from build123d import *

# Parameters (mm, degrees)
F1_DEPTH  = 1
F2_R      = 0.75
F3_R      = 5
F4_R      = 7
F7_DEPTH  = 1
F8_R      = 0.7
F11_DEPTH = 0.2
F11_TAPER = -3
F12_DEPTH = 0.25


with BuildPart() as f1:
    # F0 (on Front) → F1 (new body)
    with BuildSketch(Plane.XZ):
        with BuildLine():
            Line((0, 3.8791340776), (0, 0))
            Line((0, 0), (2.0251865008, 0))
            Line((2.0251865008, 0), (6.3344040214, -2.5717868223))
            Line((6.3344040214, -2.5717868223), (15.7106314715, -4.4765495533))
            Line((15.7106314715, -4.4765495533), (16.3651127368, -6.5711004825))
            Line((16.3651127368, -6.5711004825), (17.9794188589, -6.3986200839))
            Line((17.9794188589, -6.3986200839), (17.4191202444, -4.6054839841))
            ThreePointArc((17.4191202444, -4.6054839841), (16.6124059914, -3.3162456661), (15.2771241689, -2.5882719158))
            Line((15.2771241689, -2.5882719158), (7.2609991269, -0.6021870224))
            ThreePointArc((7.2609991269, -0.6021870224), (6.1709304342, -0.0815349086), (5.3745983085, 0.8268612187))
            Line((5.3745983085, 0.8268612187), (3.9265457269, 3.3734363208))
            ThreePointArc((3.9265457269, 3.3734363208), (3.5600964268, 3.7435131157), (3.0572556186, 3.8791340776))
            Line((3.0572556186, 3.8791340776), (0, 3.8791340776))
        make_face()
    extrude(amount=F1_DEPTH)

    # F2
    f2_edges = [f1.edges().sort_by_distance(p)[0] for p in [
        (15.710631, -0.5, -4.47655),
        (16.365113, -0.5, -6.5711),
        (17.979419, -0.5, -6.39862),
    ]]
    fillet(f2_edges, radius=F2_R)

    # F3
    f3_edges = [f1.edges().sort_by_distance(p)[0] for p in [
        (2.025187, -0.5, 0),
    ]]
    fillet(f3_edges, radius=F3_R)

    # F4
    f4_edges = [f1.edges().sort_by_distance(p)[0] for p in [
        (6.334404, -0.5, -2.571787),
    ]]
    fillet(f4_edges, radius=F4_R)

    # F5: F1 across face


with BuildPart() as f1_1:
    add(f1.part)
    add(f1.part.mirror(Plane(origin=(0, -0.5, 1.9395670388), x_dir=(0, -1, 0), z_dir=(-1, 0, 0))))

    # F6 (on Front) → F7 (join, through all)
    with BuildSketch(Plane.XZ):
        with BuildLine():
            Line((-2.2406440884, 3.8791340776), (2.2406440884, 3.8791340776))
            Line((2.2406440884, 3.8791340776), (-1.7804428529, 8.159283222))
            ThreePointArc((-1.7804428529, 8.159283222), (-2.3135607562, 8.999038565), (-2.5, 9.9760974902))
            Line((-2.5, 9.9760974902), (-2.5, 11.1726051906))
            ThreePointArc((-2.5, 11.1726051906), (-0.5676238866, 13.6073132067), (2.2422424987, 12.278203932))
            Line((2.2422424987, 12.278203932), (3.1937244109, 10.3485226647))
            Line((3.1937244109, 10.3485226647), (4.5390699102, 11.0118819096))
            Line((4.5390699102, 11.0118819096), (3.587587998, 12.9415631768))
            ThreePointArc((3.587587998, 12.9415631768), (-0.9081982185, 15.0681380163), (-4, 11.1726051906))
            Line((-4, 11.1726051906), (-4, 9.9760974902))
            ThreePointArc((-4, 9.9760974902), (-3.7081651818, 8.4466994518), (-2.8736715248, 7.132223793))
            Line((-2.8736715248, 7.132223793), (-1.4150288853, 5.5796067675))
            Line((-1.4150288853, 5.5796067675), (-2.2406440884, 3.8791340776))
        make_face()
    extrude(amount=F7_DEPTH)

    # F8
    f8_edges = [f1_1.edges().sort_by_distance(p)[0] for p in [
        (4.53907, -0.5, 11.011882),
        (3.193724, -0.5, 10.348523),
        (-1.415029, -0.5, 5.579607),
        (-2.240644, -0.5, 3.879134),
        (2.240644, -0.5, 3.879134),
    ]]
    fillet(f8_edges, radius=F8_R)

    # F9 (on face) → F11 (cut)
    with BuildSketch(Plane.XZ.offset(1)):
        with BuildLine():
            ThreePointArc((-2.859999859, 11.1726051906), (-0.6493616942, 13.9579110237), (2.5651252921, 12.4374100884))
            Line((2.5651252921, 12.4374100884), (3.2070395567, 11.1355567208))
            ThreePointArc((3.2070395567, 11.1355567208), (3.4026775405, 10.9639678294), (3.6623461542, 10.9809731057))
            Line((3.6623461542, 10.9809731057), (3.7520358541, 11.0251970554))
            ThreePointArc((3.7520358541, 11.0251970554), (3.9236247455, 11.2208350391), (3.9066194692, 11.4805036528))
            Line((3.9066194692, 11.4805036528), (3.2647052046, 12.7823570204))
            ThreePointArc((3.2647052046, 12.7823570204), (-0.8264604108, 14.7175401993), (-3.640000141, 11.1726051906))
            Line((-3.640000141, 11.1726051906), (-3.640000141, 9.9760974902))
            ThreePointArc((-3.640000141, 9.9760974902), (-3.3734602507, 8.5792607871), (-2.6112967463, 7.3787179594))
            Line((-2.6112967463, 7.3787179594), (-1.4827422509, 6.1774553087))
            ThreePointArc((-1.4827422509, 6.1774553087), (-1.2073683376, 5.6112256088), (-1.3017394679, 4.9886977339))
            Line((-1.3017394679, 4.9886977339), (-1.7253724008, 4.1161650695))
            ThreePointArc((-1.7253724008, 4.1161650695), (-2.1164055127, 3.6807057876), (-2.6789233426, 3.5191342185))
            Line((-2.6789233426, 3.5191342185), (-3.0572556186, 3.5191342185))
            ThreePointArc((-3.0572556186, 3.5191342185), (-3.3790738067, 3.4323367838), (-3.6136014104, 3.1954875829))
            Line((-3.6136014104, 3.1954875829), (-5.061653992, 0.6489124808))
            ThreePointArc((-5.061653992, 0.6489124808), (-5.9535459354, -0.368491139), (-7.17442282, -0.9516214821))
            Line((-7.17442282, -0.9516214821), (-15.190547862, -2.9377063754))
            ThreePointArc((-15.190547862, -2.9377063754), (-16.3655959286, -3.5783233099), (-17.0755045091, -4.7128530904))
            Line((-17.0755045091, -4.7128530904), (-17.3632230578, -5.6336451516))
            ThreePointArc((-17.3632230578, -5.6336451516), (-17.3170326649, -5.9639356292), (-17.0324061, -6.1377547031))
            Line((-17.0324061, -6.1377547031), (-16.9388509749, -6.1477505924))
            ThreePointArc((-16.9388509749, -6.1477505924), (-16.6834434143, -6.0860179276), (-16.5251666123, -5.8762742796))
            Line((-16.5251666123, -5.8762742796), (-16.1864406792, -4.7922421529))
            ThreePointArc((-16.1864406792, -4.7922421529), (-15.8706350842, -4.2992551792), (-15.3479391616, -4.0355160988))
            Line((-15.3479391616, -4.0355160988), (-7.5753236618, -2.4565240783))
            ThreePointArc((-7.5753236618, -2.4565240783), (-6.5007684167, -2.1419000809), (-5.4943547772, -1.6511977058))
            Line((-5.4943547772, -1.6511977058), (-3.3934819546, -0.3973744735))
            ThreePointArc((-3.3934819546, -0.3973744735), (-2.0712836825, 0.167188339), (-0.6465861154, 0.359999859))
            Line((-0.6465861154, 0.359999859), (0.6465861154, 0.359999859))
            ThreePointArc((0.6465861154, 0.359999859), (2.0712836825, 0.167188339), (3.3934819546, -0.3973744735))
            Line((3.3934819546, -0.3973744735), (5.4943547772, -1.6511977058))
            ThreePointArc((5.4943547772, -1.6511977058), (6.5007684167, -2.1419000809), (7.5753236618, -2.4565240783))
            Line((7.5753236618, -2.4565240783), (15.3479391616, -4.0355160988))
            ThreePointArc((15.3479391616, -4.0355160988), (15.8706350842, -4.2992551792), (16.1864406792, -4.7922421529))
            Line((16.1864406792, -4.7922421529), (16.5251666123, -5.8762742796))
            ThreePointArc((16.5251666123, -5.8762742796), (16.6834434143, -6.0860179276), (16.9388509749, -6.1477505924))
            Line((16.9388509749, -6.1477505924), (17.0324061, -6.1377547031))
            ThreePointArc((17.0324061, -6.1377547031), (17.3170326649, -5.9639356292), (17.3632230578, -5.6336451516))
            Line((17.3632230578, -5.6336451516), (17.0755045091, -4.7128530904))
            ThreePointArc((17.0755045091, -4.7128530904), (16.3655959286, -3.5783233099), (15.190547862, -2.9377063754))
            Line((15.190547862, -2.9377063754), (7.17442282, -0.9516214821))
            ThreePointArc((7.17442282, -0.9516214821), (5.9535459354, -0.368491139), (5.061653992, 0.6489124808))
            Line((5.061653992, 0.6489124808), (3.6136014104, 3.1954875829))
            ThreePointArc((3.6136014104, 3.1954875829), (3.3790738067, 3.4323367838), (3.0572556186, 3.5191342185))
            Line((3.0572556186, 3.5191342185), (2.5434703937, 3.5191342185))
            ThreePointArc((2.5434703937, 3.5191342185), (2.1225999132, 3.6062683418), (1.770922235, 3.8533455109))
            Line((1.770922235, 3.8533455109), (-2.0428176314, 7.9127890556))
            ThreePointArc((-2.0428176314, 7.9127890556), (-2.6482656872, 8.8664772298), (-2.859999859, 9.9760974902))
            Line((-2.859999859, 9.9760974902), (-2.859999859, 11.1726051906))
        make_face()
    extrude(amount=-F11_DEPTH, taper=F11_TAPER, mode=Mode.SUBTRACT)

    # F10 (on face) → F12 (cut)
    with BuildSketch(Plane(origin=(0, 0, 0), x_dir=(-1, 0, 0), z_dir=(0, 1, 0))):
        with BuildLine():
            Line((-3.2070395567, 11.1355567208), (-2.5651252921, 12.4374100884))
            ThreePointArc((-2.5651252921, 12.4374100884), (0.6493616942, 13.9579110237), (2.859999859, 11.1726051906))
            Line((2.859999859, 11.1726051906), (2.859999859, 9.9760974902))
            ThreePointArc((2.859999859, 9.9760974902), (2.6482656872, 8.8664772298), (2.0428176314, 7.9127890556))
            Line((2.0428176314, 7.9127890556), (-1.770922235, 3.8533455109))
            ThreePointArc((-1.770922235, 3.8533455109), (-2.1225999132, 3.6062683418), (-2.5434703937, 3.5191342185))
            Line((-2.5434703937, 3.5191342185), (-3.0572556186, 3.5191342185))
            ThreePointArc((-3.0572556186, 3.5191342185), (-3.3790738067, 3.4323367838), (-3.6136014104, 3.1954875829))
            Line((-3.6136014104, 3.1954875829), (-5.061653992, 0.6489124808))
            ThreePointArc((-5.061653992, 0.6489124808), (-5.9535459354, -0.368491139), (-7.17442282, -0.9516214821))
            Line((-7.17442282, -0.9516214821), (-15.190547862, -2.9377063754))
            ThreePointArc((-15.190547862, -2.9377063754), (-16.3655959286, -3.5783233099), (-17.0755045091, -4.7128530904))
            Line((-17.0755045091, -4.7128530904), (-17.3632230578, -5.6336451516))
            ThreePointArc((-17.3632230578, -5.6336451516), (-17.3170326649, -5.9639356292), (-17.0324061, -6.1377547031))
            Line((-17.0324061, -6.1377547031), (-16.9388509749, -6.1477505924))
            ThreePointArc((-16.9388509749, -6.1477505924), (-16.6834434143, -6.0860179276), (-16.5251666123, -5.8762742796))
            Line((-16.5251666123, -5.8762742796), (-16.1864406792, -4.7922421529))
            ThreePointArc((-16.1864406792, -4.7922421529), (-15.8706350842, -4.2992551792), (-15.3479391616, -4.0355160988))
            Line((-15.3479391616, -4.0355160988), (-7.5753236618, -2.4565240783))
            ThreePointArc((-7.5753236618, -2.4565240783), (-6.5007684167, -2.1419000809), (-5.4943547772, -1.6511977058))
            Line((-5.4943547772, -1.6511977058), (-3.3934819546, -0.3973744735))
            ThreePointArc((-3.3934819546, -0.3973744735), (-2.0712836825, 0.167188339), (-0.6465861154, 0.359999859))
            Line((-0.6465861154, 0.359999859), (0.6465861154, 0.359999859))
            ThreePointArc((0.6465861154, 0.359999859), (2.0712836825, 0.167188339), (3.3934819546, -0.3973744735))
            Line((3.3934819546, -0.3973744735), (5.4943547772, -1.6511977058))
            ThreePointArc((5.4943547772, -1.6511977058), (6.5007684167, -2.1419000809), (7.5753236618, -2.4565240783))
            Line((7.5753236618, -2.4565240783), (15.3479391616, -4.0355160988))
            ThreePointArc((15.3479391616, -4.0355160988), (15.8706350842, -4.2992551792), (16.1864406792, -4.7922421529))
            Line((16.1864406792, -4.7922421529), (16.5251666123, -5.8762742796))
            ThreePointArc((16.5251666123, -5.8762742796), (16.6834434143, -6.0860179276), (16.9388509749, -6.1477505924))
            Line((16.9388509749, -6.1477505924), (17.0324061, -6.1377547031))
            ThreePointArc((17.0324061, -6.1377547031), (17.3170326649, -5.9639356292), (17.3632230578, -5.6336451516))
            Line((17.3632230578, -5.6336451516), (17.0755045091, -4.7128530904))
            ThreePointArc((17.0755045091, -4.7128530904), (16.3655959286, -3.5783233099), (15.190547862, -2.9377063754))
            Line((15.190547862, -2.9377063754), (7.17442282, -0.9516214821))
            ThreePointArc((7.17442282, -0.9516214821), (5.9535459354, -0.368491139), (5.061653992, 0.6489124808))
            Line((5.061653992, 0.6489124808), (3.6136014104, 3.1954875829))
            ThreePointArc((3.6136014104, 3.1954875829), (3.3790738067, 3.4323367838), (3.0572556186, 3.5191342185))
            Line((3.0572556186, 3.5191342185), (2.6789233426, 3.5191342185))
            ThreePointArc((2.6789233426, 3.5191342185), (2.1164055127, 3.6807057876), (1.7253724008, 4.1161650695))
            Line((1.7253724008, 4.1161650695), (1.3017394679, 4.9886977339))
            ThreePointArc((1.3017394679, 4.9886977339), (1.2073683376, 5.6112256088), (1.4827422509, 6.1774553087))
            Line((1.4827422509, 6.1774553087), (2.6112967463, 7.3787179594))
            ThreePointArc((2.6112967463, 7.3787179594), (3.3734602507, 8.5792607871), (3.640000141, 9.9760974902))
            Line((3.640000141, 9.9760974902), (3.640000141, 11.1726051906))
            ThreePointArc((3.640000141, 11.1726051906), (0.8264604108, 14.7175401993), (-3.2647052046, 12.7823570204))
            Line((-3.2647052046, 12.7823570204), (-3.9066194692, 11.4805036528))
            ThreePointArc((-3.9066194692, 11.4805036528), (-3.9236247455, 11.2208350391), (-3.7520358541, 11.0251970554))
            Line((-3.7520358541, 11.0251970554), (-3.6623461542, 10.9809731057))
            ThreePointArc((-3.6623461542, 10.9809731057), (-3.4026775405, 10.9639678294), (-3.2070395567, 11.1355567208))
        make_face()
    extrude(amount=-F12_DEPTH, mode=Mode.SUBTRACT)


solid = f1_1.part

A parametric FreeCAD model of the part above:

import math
import FreeCAD as App
import Part
import Sketcher

V = App.Vector
Q = App.Units.Quantity


def edges_at(feature, points):
    """Names of the edges that pass closest to the given points."""
    edges = feature.Shape.Edges
    near = lambda p: min(range(len(edges)), key=lambda i: edges[i].distToShape(Part.Vertex(*p))[0])
    return sorted({f"Edge{near(p) + 1}" for p in points})

doc = App.newDocument("Part")
body = doc.addObject("PartDesign::Body", "Body")

# Sketch on XZ plane
sketch1 = body.newObject("Sketcher::SketchObject", "Sketch")
sketch1.AttachmentSupport = (doc.getObject("XZ_Plane"), [""])
sketch1.MapMode = "FlatFace"
sketch1.addGeometry([
    Part.LineSegment(V(0, 3.9, 0), V(0, 0, 0)),  # 0
    Part.LineSegment(V(0, 0, 0), V(2, 0, 0)),  # 1
    Part.LineSegment(V(2, 0, 0), V(6.3, -2.6, 0)),  # 2
    Part.LineSegment(V(6.3, -2.6, 0), V(15.7, -4.5, 0)),  # 3
    Part.LineSegment(V(15.7, -4.5, 0), V(16.4, -6.6, 0)),  # 4
    Part.LineSegment(V(16.4, -6.6, 0), V(18, -6.4, 0)),  # 5
    Part.LineSegment(V(18, -6.4, 0), V(17.4, -4.6, 0)),  # 6
    Part.ArcOfCircle(Part.Circle(V(14.6, -5.5, 0), V(0, 0, 1), 3), math.radians(17), math.radians(76)),  # 7
    Part.LineSegment(V(15.3, -2.6, 0), V(7.3, -0.6, 0)),  # 8
    Part.ArcOfCircle(Part.Circle(V(8, 2.3, 0), V(0, 0, 1), 3), math.radians(-150), math.radians(-104)),  # 9
    Part.LineSegment(V(5.4, 0.8, 0), V(3.9, 3.4, 0)),  # 10
    Part.ArcOfCircle(Part.Circle(V(3.1, 2.9, 0), V(0, 0, 1), 1), math.radians(30), math.radians(90)),  # 11
    Part.LineSegment(V(3.1, 3.9, 0), V(0, 3.9, 0)),  # 12
], False)
sketch1.addConstraint([
    Sketcher.Constraint("Coincident", 0, 2, 1, 1),
    Sketcher.Constraint("Coincident", 1, 2, 2, 1),
    Sketcher.Constraint("Coincident", 2, 2, 3, 1),
    Sketcher.Constraint("Coincident", 3, 2, 4, 1),
    Sketcher.Constraint("Coincident", 4, 2, 5, 1),
    Sketcher.Constraint("Coincident", 5, 2, 6, 1),
    Sketcher.Constraint("Tangent", 6, 2, 7, 1),
    Sketcher.Constraint("Tangent", 7, 2, 8, 1),
    Sketcher.Constraint("Tangent", 8, 2, 9, 2),
    Sketcher.Constraint("Tangent", 9, 1, 10, 1),
    Sketcher.Constraint("Tangent", 10, 2, 11, 1),
    Sketcher.Constraint("Tangent", 11, 2, 12, 1),
    Sketcher.Constraint("Coincident", 12, 2, 0, 1),
    Sketcher.Constraint("Vertical", 0),
    Sketcher.Constraint("Horizontal", 1),
    Sketcher.Constraint("Horizontal", 12),
    Sketcher.Constraint("Coincident", 0, 2, -1, 1),
    Sketcher.Constraint("Equal", 7, 9),
    Sketcher.Constraint("Parallel", 4, 6),
    Sketcher.Constraint("Radius", 7, Q("3 mm")),
    Sketcher.Constraint("Radius", 11, Q("1 mm")),
    Sketcher.Constraint("DistanceX", -1, 1, 8, 2, Q("7.260999 mm")),
    Sketcher.Constraint("Distance", 8, Q("8.258498 mm")),
    Sketcher.Constraint("DistanceY", 4, 2, -1, 1, Q("6.5711 mm")),
    Sketcher.Constraint("DistanceX", -1, 1, 9, 1, Q("5.374598 mm")),
    Sketcher.Constraint("DistanceX", 11, 3, 7, 3, Q("11.498399 mm")),
    Sketcher.Constraint("DistanceX", 6, 2, 5, 2, Q("0.560299 mm")),
    Sketcher.Constraint("DistanceY", 2, 2, 8, 2, Q("1.9696 mm")),
    Sketcher.Constraint("Distance", 2, Q("5.018311 mm")),
    Sketcher.Constraint("Distance", 10, Q("2.929488 mm")),
    Sketcher.Constraint("DistanceX", 1, 1, 1, 2, Q("2.025187 mm")),
    Sketcher.Constraint("DistanceY", 0, 2, 0, 1, Q("3.879134 mm")),
    Sketcher.Constraint("DistanceX", -1, 1, 3, 2, Q("15.710631 mm")),
    Sketcher.Constraint("DistanceY", 3, 2, -1, 1, Q("4.47655 mm")),
    Sketcher.Constraint("DistanceX", -1, 1, 5, 2, Q("17.979419 mm")),
])
pad1 = body.newObject("PartDesign::Pad", "Pad")
pad1.Profile = sketch1
pad1.Length = 1
doc.recompute()

fillet = body.newObject("PartDesign::Fillet", "Fillet")
fillet.Base = (pad1, edges_at(pad1, [(15.711, -0.5, -4.477), (16.365, -0.5, -6.571), (17.979, -0.5, -6.399)]))
fillet.Radius = 0.75
doc.recompute()

fillet2 = body.newObject("PartDesign::Fillet", "Fillet001")
fillet2.Base = (fillet, edges_at(fillet, [(2.025, -0.5, 0)]))
fillet2.Radius = 5
doc.recompute()

fillet3 = body.newObject("PartDesign::Fillet", "Fillet002")
fillet3.Base = (fillet2, edges_at(fillet2, [(6.334, -0.5, -2.572)]))
fillet3.Radius = 7
body2 = doc.addObject("PartDesign::Body", "Body001")
doc.recompute()

body2.BaseFeature = body
doc.recompute()

mirroring = doc.addObject("Part::Mirroring", "Mirroring")
mirroring.Source = body
mirroring.Base = V(0, -0.5, 1.939567)
mirroring.Normal = V(-1, 0, 0)
body3 = doc.addObject("PartDesign::Body", "Body002")
body3.BaseFeature = mirroring
boolean = body2.newObject("PartDesign::Boolean", "Boolean")
boolean.Type = "Fuse"
boolean.addObjects([body3])
doc.recompute()

# Sketch on XZ plane
sketch2 = body2.newObject("Sketcher::SketchObject", "Sketch001")
sketch2.AttachmentSupport = (doc.getObject("XZ_Plane001"), [""])
sketch2.MapMode = "FlatFace"
sketch2.addGeometry([
    Part.LineSegment(V(-2.2, 3.9, 0), V(2.2, 3.9, 0)),  # 0
    Part.LineSegment(V(2.2, 3.9, 0), V(-1.8, 8.2, 0)),  # 1
    Part.ArcOfCircle(Part.Circle(V(0.2, 10, 0), V(0, 0, 1), 2.7), math.radians(180), math.radians(223)),  # 2
    Part.LineSegment(V(-2.5, 10, 0), V(-2.5, 11.2, 0)),  # 3
    Part.ArcOfCircle(Part.Circle(V(0, 11.2, 0), V(0, 0, 1), 2.5), math.radians(26), math.radians(180)),  # 4
    Part.LineSegment(V(2.2, 12.3, 0), V(3.2, 10.3, 0)),  # 5
    Part.LineSegment(V(3.2, 10.3, 0), V(4.5, 11, 0)),  # 6
    Part.LineSegment(V(4.5, 11, 0), V(3.6, 12.9, 0)),  # 7
    Part.ArcOfCircle(Part.Circle(V(0, 11.2, 0), V(0, 0, 1), 4), math.radians(26), math.radians(180)),  # 8
    Part.LineSegment(V(-4, 11.2, 0), V(-4, 10, 0)),  # 9
    Part.ArcOfCircle(Part.Circle(V(0.2, 10, 0), V(0, 0, 1), 4.2), math.radians(180), math.radians(223)),  # 10
    Part.LineSegment(V(-2.9, 7.1, 0), V(-1.4, 5.6, 0)),  # 11
    Part.LineSegment(V(-1.4, 5.6, 0), V(-2.2, 3.9, 0)),  # 12
], False)
sketch2.addConstraint([
    Sketcher.Constraint("Coincident", 0, 2, 1, 1),
    Sketcher.Constraint("Tangent", 1, 2, 2, 2),
    Sketcher.Constraint("Tangent", 2, 1, 3, 1),
    Sketcher.Constraint("Tangent", 3, 2, 4, 2),
    Sketcher.Constraint("Tangent", 4, 1, 5, 1),
    Sketcher.Constraint("Coincident", 5, 2, 6, 1),
    Sketcher.Constraint("Coincident", 6, 2, 7, 1),
    Sketcher.Constraint("Tangent", 7, 2, 8, 1),
    Sketcher.Constraint("Tangent", 8, 2, 9, 1),
    Sketcher.Constraint("Tangent", 9, 2, 10, 1),
    Sketcher.Constraint("Tangent", 10, 2, 11, 1),
    Sketcher.Constraint("Coincident", 11, 2, 12, 1),
    Sketcher.Constraint("Coincident", 12, 2, 0, 1),
    Sketcher.Constraint("Horizontal", 0),
    Sketcher.Constraint("Vertical", 3),
    Sketcher.Constraint("Vertical", 9),
    Sketcher.Constraint("Coincident", 8, 3, 4, 3),
    Sketcher.Constraint("Coincident", 10, 3, 2, 3),
    Sketcher.Constraint("PointOnObject", 4, 3, -2),
    Sketcher.Constraint("Perpendicular", 5, 6),
    Sketcher.Constraint("Perpendicular", 6, 7),
    Sketcher.Constraint("Parallel", 1, 11),
    Sketcher.Constraint("Radius", 8, Q("4 mm")),
    Sketcher.Constraint("Radius", 4, Q("2.5 mm")),
    Sketcher.Constraint("Radius", 2, Q("2.653421 mm")),
    Sketcher.Constraint("DistanceX", 0, 1, 0, 2, Q("4.481288 mm")),
    Sketcher.Constraint("DistanceY", 4, 3, 4, 1, Q("1.105599 mm")),
    Sketcher.Constraint("DistanceX", 12, 2, 1, 2, Q("0.460201 mm")),
    Sketcher.Constraint("Distance", 1, Q("5.872718 mm")),
    Sketcher.Constraint("Distance", 5, Q("2.151508 mm")),
    Sketcher.Constraint("Distance", 11, Q("2.130319 mm")),
    Sketcher.Constraint("DistanceY", 3, 1, 3, 2, Q("1.196508 mm")),
    Sketcher.Constraint("DistanceY", -1, 1, 6, 2, Q("11.011882 mm")),
])
pad2 = body2.newObject("PartDesign::Pad", "Pad001")
pad2.Profile = sketch2
pad2.Length = 1
doc.recompute()

fillet4 = body2.newObject("PartDesign::Fillet", "Fillet003")
fillet4.Base = (pad2, edges_at(pad2, [
    (4.539, -0.5, 11.012),
    (3.194, -0.5, 10.349),
    (-1.415, -0.5, 5.58),
    (-2.241, -0.5, 3.879),
    (2.241, -0.5, 3.879),
]))
fillet4.Radius = 0.7

# Sketch on XZ plane
sketch3 = body2.newObject("Sketcher::SketchObject", "Sketch002")
sketch3.AttachmentSupport = (doc.getObject("XZ_Plane001"), [""])
sketch3.MapMode = "FlatFace"
sketch3.AttachmentOffset = App.Placement(V(0, 0, 1), App.Rotation())
sketch3.addGeometry([
    Part.ArcOfCircle(Part.Circle(V(0, 11.172605, 0), V(0, 0, 1), 2.86), math.radians(26.246857), math.radians(180)),  # 0
    Part.LineSegment(V(2.565125, 12.43741, 0), V(3.20704, 11.135557, 0)),  # 1
    Part.ArcOfCircle(Part.Circle(V(3.511985, 11.285918, 0), V(0, 0, 1), 0.34), math.radians(-153.753143), math.radians(-63.753143)),  # 2
    Part.LineSegment(V(3.662346, 10.980973, 0), V(3.752036, 11.025197, 0)),  # 3
    Part.ArcOfCircle(Part.Circle(V(3.601674, 11.330142, 0), V(0, 0, 1), 0.34), math.radians(-63.753143), math.radians(26.246857)),  # 4
    Part.LineSegment(V(3.906619, 11.480504, 0), V(3.264705, 12.782357, 0)),  # 5
    Part.ArcOfCircle(Part.Circle(V(0, 11.172605, 0), V(0, 0, 1), 3.64), math.radians(26.246857), math.radians(180)),  # 6
    Part.LineSegment(V(-3.64, 11.172605, 0), V(-3.64, 9.976097, 0)),  # 7
    Part.ArcOfCircle(Part.Circle(V(0.153421, 9.976097, 0), V(0, 0, 1), 3.793421), math.radians(180), math.radians(223.212513)),  # 8
    Part.LineSegment(V(-2.611297, 7.378718, 0), V(-1.482742, 6.177455, 0)),  # 9
    Part.ArcOfCircle(Part.Circle(V(-2.25529, 5.451667, 0), V(0, 0, 1), 1.06), math.radians(-25.897547), math.radians(43.212513)),  # 10
    Part.LineSegment(V(-1.301739, 4.988698, 0), V(-1.725372, 4.116165, 0)),  # 11
    Part.ArcOfCircle(Part.Circle(V(-2.678923, 4.579134, 0), V(0, 0, 1), 1.06), math.radians(-90), math.radians(-25.897547)),  # 12
    Part.LineSegment(V(-2.678923, 3.519134, 0), V(-3.057256, 3.519134, 0)),  # 13
    Part.ArcOfCircle(Part.Circle(V(-3.057256, 2.879134, 0), V(0, 0, 1), 0.64), math.radians(90), math.radians(150.37625)),  # 14
    Part.LineSegment(V(-3.613601, 3.195488, 0), V(-5.061654, 0.648912, 0)),  # 15
    Part.ArcOfCircle(Part.Circle(V(-7.982469, 2.309768, 0), V(0, 0, 1), 3.36), math.radians(-76.084547), math.radians(-29.62375)),  # 16
    Part.LineSegment(V(-7.174423, -0.951621, 0), V(-15.190548, -2.937706, 0)),  # 17
    Part.ArcOfCircle(Part.Circle(V(-14.555655, -5.500227, 0), V(0, 0, 1), 2.64), math.radians(103.915453), math.radians(162.647618)),  # 18
    Part.LineSegment(V(-17.075505, -4.712853, 0), V(-17.363223, -5.633645, 0)),  # 19
    Part.ArcOfCircle(Part.Circle(V(-16.990972, -5.749962, 0), V(0, 0, 1), 0.39), math.radians(162.647618), math.radians(263.901374)),  # 20
    Part.LineSegment(V(-17.032406, -6.137755, 0), V(-16.938851, -6.147751, 0)),  # 21
    Part.ArcOfCircle(Part.Circle(V(-16.897417, -5.759958, 0), V(0, 0, 1), 0.39), math.radians(-96.098626), math.radians(-17.352382)),  # 22
    Part.LineSegment(V(-16.525167, -5.876274, 0), V(-16.186441, -4.792242, 0)),  # 23
    Part.ArcOfCircle(Part.Circle(V(-15.126959, -5.123297, 0), V(0, 0, 1), 1.11), math.radians(101.483262), math.radians(162.647618)),  # 24
    Part.LineSegment(V(-15.347939, -4.035516, 0), V(-7.575324, -2.456524, 0)),  # 25
    Part.ArcOfCircle(Part.Circle(V(-8.897226, 4.050563, 0), V(0, 0, 1), 6.64), math.radians(-78.516738), math.radians(-59.170798)),  # 26
    Part.LineSegment(V(-5.494355, -1.651198, 0), V(-3.393482, -0.397374, 0)),  # 27
    Part.ArcOfCircle(Part.Circle(V(-0.646586, -5, 0), V(0, 0, 1), 5.36), math.radians(90), math.radians(120.829202)),  # 28
    Part.LineSegment(V(-0.646586, 0.36, 0), V(0.646586, 0.36, 0)),  # 29
    Part.ArcOfCircle(Part.Circle(V(0.646586, -5, 0), V(0, 0, 1), 5.36), math.radians(59.170798), math.radians(90)),  # 30
    Part.LineSegment(V(3.393482, -0.397374, 0), V(5.494355, -1.651198, 0)),  # 31
    Part.ArcOfCircle(Part.Circle(V(8.897226, 4.050563, 0), V(0, 0, 1), 6.64), math.radians(-120.829202), math.radians(-101.483262)),  # 32
    Part.LineSegment(V(7.575324, -2.456524, 0), V(15.347939, -4.035516, 0)),  # 33
    Part.ArcOfCircle(Part.Circle(V(15.126959, -5.123297, 0), V(0, 0, 1), 1.11), math.radians(17.352382), math.radians(78.516738)),  # 34
    Part.LineSegment(V(16.186441, -4.792242, 0), V(16.525167, -5.876274, 0)),  # 35
    Part.ArcOfCircle(Part.Circle(V(16.897417, -5.759958, 0), V(0, 0, 1), 0.39), math.radians(-162.647618), math.radians(-83.901374)),  # 36
    Part.LineSegment(V(16.938851, -6.147751, 0), V(17.032406, -6.137755, 0)),  # 37
    Part.ArcOfCircle(Part.Circle(V(16.990972, -5.749962, 0), V(0, 0, 1), 0.39), math.radians(-83.901374), math.radians(17.352382)),  # 38
    Part.LineSegment(V(17.363223, -5.633645, 0), V(17.075505, -4.712853, 0)),  # 39
    Part.ArcOfCircle(Part.Circle(V(14.555655, -5.500227, 0), V(0, 0, 1), 2.64), math.radians(17.352382), math.radians(76.084547)),  # 40
    Part.LineSegment(V(15.190548, -2.937706, 0), V(7.174423, -0.951621, 0)),  # 41
    Part.ArcOfCircle(Part.Circle(V(7.982469, 2.309768, 0), V(0, 0, 1), 3.36), math.radians(-150.37625), math.radians(-103.915453)),  # 42
    Part.LineSegment(V(5.061654, 0.648912, 0), V(3.613601, 3.195488, 0)),  # 43
    Part.ArcOfCircle(Part.Circle(V(3.057256, 2.879134, 0), V(0, 0, 1), 0.64), math.radians(29.62375), math.radians(90)),  # 44
    Part.LineSegment(V(3.057256, 3.519134, 0), V(2.54347, 3.519134, 0)),  # 45
    Part.ArcOfCircle(Part.Circle(V(2.54347, 4.579134, 0), V(0, 0, 1), 1.06), math.radians(-136.787487), math.radians(-90)),  # 46
    Part.LineSegment(V(1.770922, 3.853346, 0), V(-2.042818, 7.912789, 0)),  # 47
    Part.ArcOfCircle(Part.Circle(V(0.153421, 9.976097, 0), V(0, 0, 1), 3.013421), math.radians(180), math.radians(223.212513)),  # 48
    Part.LineSegment(V(-2.86, 9.976097, 0), V(-2.86, 11.172605, 0)),  # 49
], False)
sketch3.addConstraint([
    Sketcher.Constraint("Coincident", 0, 1, 1, 1),
    Sketcher.Constraint("Coincident", 1, 2, 2, 1),
    Sketcher.Constraint("Coincident", 2, 2, 3, 1),
    Sketcher.Constraint("Coincident", 3, 2, 4, 1),
    Sketcher.Constraint("Coincident", 4, 2, 5, 1),
    Sketcher.Constraint("Coincident", 5, 2, 6, 1),
    Sketcher.Constraint("Coincident", 6, 2, 7, 1),
    Sketcher.Constraint("Coincident", 7, 2, 8, 1),
    Sketcher.Constraint("Coincident", 8, 2, 9, 1),
    Sketcher.Constraint("Coincident", 9, 2, 10, 2),
    Sketcher.Constraint("Coincident", 10, 1, 11, 1),
    Sketcher.Constraint("Coincident", 11, 2, 12, 2),
    Sketcher.Constraint("Coincident", 12, 1, 13, 1),
    Sketcher.Constraint("Coincident", 13, 2, 14, 1),
    Sketcher.Constraint("Coincident", 14, 2, 15, 1),
    Sketcher.Constraint("Coincident", 15, 2, 16, 2),
    Sketcher.Constraint("Coincident", 16, 1, 17, 1),
    Sketcher.Constraint("Coincident", 17, 2, 18, 1),
    Sketcher.Constraint("Coincident", 18, 2, 19, 1),
    Sketcher.Constraint("Coincident", 19, 2, 20, 1),
    Sketcher.Constraint("Coincident", 20, 2, 21, 1),
    Sketcher.Constraint("Coincident", 21, 2, 22, 1),
    Sketcher.Constraint("Coincident", 22, 2, 23, 1),
    Sketcher.Constraint("Coincident", 23, 2, 24, 2),
    Sketcher.Constraint("Coincident", 24, 1, 25, 1),
    Sketcher.Constraint("Coincident", 25, 2, 26, 1),
    Sketcher.Constraint("Coincident", 26, 2, 27, 1),
    Sketcher.Constraint("Coincident", 27, 2, 28, 2),
    Sketcher.Constraint("Coincident", 28, 1, 29, 1),
    Sketcher.Constraint("Coincident", 29, 2, 30, 2),
    Sketcher.Constraint("Coincident", 30, 1, 31, 1),
    Sketcher.Constraint("Coincident", 31, 2, 32, 1),
    Sketcher.Constraint("Coincident", 32, 2, 33, 1),
    Sketcher.Constraint("Coincident", 33, 2, 34, 2),
    Sketcher.Constraint("Coincident", 34, 1, 35, 1),
    Sketcher.Constraint("Coincident", 35, 2, 36, 1),
    Sketcher.Constraint("Coincident", 36, 2, 37, 1),
    Sketcher.Constraint("Coincident", 37, 2, 38, 1),
    Sketcher.Constraint("Coincident", 38, 2, 39, 1),
    Sketcher.Constraint("Coincident", 39, 2, 40, 1),
    Sketcher.Constraint("Coincident", 40, 2, 41, 1),
    Sketcher.Constraint("Coincident", 41, 2, 42, 2),
    Sketcher.Constraint("Coincident", 42, 1, 43, 1),
    Sketcher.Constraint("Coincident", 43, 2, 44, 1),
    Sketcher.Constraint("Coincident", 44, 2, 45, 1),
    Sketcher.Constraint("Coincident", 45, 2, 46, 2),
    Sketcher.Constraint("Coincident", 46, 1, 47, 1),
    Sketcher.Constraint("Coincident", 47, 2, 48, 2),
    Sketcher.Constraint("Coincident", 48, 1, 49, 1),
    Sketcher.Constraint("Coincident", 49, 2, 0, 2),
    Sketcher.Constraint("Vertical", 7),
    Sketcher.Constraint("Horizontal", 13),
    Sketcher.Constraint("Horizontal", 29),
    Sketcher.Constraint("Horizontal", 45),
    Sketcher.Constraint("Vertical", 49),
    Sketcher.Constraint("Coincident", 6, 3, 0, 3),
    Sketcher.Constraint("Coincident", 48, 3, 8, 3),
    Sketcher.Constraint("PointOnObject", 0, 3, -2),
    Sketcher.Constraint("Radius", 0, Q("2.86 mm")),
    Sketcher.Constraint("Radius", 2, Q("0.34 mm")),
    Sketcher.Constraint("Radius", 4, Q("0.34 mm")),
    Sketcher.Constraint("Radius", 6, Q("3.64 mm")),
    Sketcher.Constraint("Radius", 10, Q("1.06 mm")),
    Sketcher.Constraint("Radius", 12, Q("1.06 mm")),
    Sketcher.Constraint("Radius", 14, Q("0.64 mm")),
    Sketcher.Constraint("Radius", 16, Q("3.36 mm")),
    Sketcher.Constraint("Radius", 18, Q("2.64 mm")),
    Sketcher.Constraint("Radius", 20, Q("0.39 mm")),
    Sketcher.Constraint("Radius", 22, Q("0.39 mm")),
    Sketcher.Constraint("Radius", 24, Q("1.11 mm")),
    Sketcher.Constraint("Radius", 26, Q("6.64 mm")),
    Sketcher.Constraint("Radius", 28, Q("5.36 mm")),
    Sketcher.Constraint("Radius", 30, Q("5.36 mm")),
    Sketcher.Constraint("Radius", 32, Q("6.64 mm")),
    Sketcher.Constraint("Radius", 34, Q("1.11 mm")),
    Sketcher.Constraint("Radius", 36, Q("0.39 mm")),
    Sketcher.Constraint("Radius", 38, Q("0.39 mm")),
    Sketcher.Constraint("Radius", 40, Q("2.64 mm")),
    Sketcher.Constraint("Radius", 42, Q("3.36 mm")),
    Sketcher.Constraint("Radius", 44, Q("0.64 mm")),
    Sketcher.Constraint("Radius", 46, Q("1.06 mm")),
    Sketcher.Constraint("DistanceY", 28, 3, -1, 1, Q("5 mm")),
    Sketcher.Constraint("Distance", 3, Q("0.1 mm")),
    Sketcher.Constraint("Radius", 8, Q("3.793421 mm")),
    Sketcher.Constraint("Distance", 17, Q("8.258498 mm")),
    Sketcher.Constraint("Distance", 41, Q("8.258498 mm")),
    Sketcher.Constraint("DistanceX", 14, 2, -1, 1, Q("3.613601 mm")),
    Sketcher.Constraint("DistanceX", -1, 1, 43, 2, Q("3.613601 mm")),
    Sketcher.Constraint("Distance", 1, Q("1.451508 mm")),
    Sketcher.Constraint("Distance", 5, Q("1.451508 mm")),
    Sketcher.Constraint("Distance", 9, Q("1.648232 mm")),
    Sketcher.Constraint("Distance", 15, Q("2.929488 mm")),
    Sketcher.Constraint("Distance", 23, Q("1.13572 mm")),
    Sketcher.Constraint("Distance", 25, Q("7.931379 mm")),
    Sketcher.Constraint("Distance", 33, Q("7.931379 mm")),
    Sketcher.Constraint("Distance", 35, Q("1.13572 mm")),
    Sketcher.Constraint("Distance", 43, Q("2.929488 mm")),
    Sketcher.Constraint("Distance", 47, Q("5.569892 mm")),
    Sketcher.Constraint("DistanceX", 13, 2, 13, 1, Q("0.378332 mm")),
    Sketcher.Constraint("DistanceX", 29, 1, 29, 2, Q("1.293172 mm")),
    Sketcher.Constraint("DistanceX", 45, 2, 45, 1, Q("0.513785 mm")),
    Sketcher.Constraint("DistanceY", 7, 2, 7, 1, Q("1.196508 mm")),
    Sketcher.Constraint("DistanceY", 49, 1, 49, 2, Q("1.196508 mm")),
    Sketcher.Constraint("DistanceY", -1, 1, 2, 3, Q("11.285918 mm")),
    Sketcher.Constraint("DistanceX", 10, 3, -1, 1, Q("2.25529 mm")),
    Sketcher.Constraint("DistanceX", 16, 3, -1, 1, Q("7.982469 mm")),
    Sketcher.Constraint("DistanceY", 20, 3, -1, 1, Q("5.749962 mm")),
    Sketcher.Constraint("DistanceX", 24, 3, -1, 1, Q("15.126959 mm")),
    Sketcher.Constraint("DistanceX", -1, 1, 34, 3, Q("15.126959 mm")),
    Sketcher.Constraint("DistanceY", 38, 3, -1, 1, Q("5.749962 mm")),
    Sketcher.Constraint("DistanceX", -1, 1, 42, 3, Q("7.982469 mm")),
    Sketcher.Constraint("DistanceX", -1, 1, 46, 3, Q("2.54347 mm")),
    Sketcher.Constraint("DistanceY", -1, 1, 0, 1, Q("12.43741 mm")),
    Sketcher.Constraint("DistanceX", -1, 1, 1, 2, Q("3.20704 mm")),
    Sketcher.Constraint("DistanceX", -1, 1, 4, 2, Q("3.906619 mm")),
    Sketcher.Constraint("DistanceX", 10, 1, -1, 1, Q("1.301739 mm")),
    Sketcher.Constraint("DistanceY", 16, 1, -1, 1, Q("0.951621 mm")),
    Sketcher.Constraint("DistanceX", 21, 2, -1, 1, Q("16.938851 mm")),
    Sketcher.Constraint("DistanceY", 21, 2, -1, 1, Q("6.147751 mm")),
    Sketcher.Constraint("DistanceX", 23, 2, -1, 1, Q("16.186441 mm")),
    Sketcher.Constraint("DistanceX", 24, 1, -1, 1, Q("15.347939 mm")),
    Sketcher.Constraint("DistanceX", 27, 2, -1, 1, Q("3.393482 mm")),
    Sketcher.Constraint("DistanceX", -1, 1, 30, 1, Q("3.393482 mm")),
    Sketcher.Constraint("DistanceX", -1, 1, 33, 2, Q("15.347939 mm")),
    Sketcher.Constraint("DistanceX", -1, 1, 34, 1, Q("16.186441 mm")),
    Sketcher.Constraint("DistanceX", -1, 1, 36, 2, Q("16.938851 mm")),
    Sketcher.Constraint("DistanceY", 36, 2, -1, 1, Q("6.147751 mm")),
    Sketcher.Constraint("DistanceY", 41, 2, -1, 1, Q("0.951621 mm")),
    Sketcher.Constraint("DistanceX", -1, 1, 45, 2, Q("2.54347 mm")),
    Sketcher.Constraint("DistanceY", -1, 1, 47, 2, Q("7.912789 mm")),
    Sketcher.Constraint("Distance", 11, Q("0.969937 mm")),
    Sketcher.Constraint("Distance", 19, Q("0.964697 mm")),
    Sketcher.Constraint("Distance", 21, Q("0.094088 mm")),
    Sketcher.Constraint("Distance", 27, Q("2.446577 mm")),
    Sketcher.Constraint("Distance", 31, Q("2.446577 mm")),
    Sketcher.Constraint("Distance", 37, Q("0.094088 mm")),
    Sketcher.Constraint("Distance", 39, Q("0.964697 mm")),
    Sketcher.Constraint("DistanceY", -1, 1, 0, 3, Q("11.172605 mm")),
    Sketcher.Constraint("DistanceX", -1, 1, 4, 3, Q("3.601674 mm")),
    Sketcher.Constraint("DistanceY", -1, 1, 4, 3, Q("11.330142 mm")),
    Sketcher.Constraint("DistanceY", -1, 1, 8, 3, Q("9.976097 mm")),
    Sketcher.Constraint("DistanceY", -1, 1, 10, 3, Q("5.451667 mm")),
    Sketcher.Constraint("DistanceX", 12, 3, -1, 1, Q("2.678923 mm")),
    Sketcher.Constraint("DistanceY", -1, 1, 12, 3, Q("4.579134 mm")),
    Sketcher.Constraint("DistanceX", 14, 3, -1, 1, Q("3.057256 mm")),
    Sketcher.Constraint("DistanceY", -1, 1, 16, 3, Q("2.309768 mm")),
    Sketcher.Constraint("DistanceX", 18, 3, -1, 1, Q("14.555655 mm")),
    Sketcher.Constraint("DistanceY", 18, 3, -1, 1, Q("5.500227 mm")),
    Sketcher.Constraint("DistanceX", 20, 3, -1, 1, Q("16.990972 mm")),
    Sketcher.Constraint("DistanceX", 22, 3, -1, 1, Q("16.897417 mm")),
    Sketcher.Constraint("DistanceY", 24, 3, -1, 1, Q("5.123297 mm")),
    Sketcher.Constraint("DistanceX", 26, 3, -1, 1, Q("8.897226 mm")),
    Sketcher.Constraint("DistanceY", -1, 1, 26, 3, Q("4.050563 mm")),
    Sketcher.Constraint("DistanceX", 28, 3, -1, 1, Q("0.646586 mm")),
    Sketcher.Constraint("DistanceX", -1, 1, 30, 3, Q("0.646586 mm")),
    Sketcher.Constraint("DistanceX", -1, 1, 32, 3, Q("8.897226 mm")),
    Sketcher.Constraint("DistanceY", -1, 1, 32, 3, Q("4.050563 mm")),
    Sketcher.Constraint("DistanceY", 34, 3, -1, 1, Q("5.123297 mm")),
    Sketcher.Constraint("DistanceX", -1, 1, 36, 3, Q("16.897417 mm")),
    Sketcher.Constraint("DistanceX", -1, 1, 38, 3, Q("16.990972 mm")),
    Sketcher.Constraint("DistanceX", -1, 1, 40, 3, Q("14.555655 mm")),
    Sketcher.Constraint("DistanceY", 40, 3, -1, 1, Q("5.500227 mm")),
    Sketcher.Constraint("DistanceY", -1, 1, 42, 3, Q("2.309768 mm")),
    Sketcher.Constraint("DistanceX", -1, 1, 44, 3, Q("3.057256 mm")),
    Sketcher.Constraint("DistanceY", -1, 1, 44, 3, Q("2.879134 mm")),
    Sketcher.Constraint("DistanceX", -1, 1, 2, 2, Q("3.662346 mm")),
    Sketcher.Constraint("DistanceY", -1, 1, 6, 2, Q("11.172605 mm")),
    Sketcher.Constraint("DistanceX", 8, 2, -1, 1, Q("2.611297 mm")),
    Sketcher.Constraint("DistanceX", 12, 1, -1, 1, Q("2.678923 mm")),
    Sketcher.Constraint("DistanceX", 18, 2, -1, 1, Q("17.075505 mm")),
    Sketcher.Constraint("DistanceX", 28, 1, -1, 1, Q("0.646586 mm")),
    Sketcher.Constraint("DistanceX", -1, 1, 38, 2, Q("17.363223 mm")),
    Sketcher.Constraint("DistanceY", -1, 1, 48, 1, Q("9.976097 mm")),
])
pocket1 = body2.newObject("PartDesign::Pocket", "Pocket")
pocket1.Profile = sketch3
pocket1.Length = 0.2
pocket1.TaperAngle = 3

# Sketch on XZ plane
sketch4 = body2.newObject("Sketcher::SketchObject", "Sketch003")
sketch4.AttachmentSupport = (doc.getObject("XZ_Plane001"), [""])
sketch4.MapMode = "FlatFace"
sketch4.addGeometry([
    Part.LineSegment(V(3.20704, 11.135557, 0), V(2.565125, 12.43741, 0)),  # 0
    Part.ArcOfCircle(Part.Circle(V(0, 11.172605, 0), V(0, 0, 1), 2.86), math.radians(26.246857), math.radians(180)),  # 1
    Part.LineSegment(V(-2.86, 11.172605, 0), V(-2.86, 9.976097, 0)),  # 2
    Part.ArcOfCircle(Part.Circle(V(0.153421, 9.976097, 0), V(0, 0, 1), 3.013421), math.radians(180), math.radians(223.212513)),  # 3
    Part.LineSegment(V(-2.042818, 7.912789, 0), V(1.770922, 3.853346, 0)),  # 4
    Part.ArcOfCircle(Part.Circle(V(2.54347, 4.579134, 0), V(0, 0, 1), 1.06), math.radians(-136.787487), math.radians(-90)),  # 5
    Part.LineSegment(V(2.54347, 3.519134, 0), V(3.057256, 3.519134, 0)),  # 6
    Part.ArcOfCircle(Part.Circle(V(3.057256, 2.879134, 0), V(0, 0, 1), 0.64), math.radians(29.62375), math.radians(90)),  # 7
    Part.LineSegment(V(3.613601, 3.195488, 0), V(5.061654, 0.648912, 0)),  # 8
    Part.ArcOfCircle(Part.Circle(V(7.982469, 2.309768, 0), V(0, 0, 1), 3.36), math.radians(-150.37625), math.radians(-103.915453)),  # 9
    Part.LineSegment(V(7.174423, -0.951621, 0), V(15.190548, -2.937706, 0)),  # 10
    Part.ArcOfCircle(Part.Circle(V(14.555655, -5.500227, 0), V(0, 0, 1), 2.64), math.radians(17.352382), math.radians(76.084547)),  # 11
    Part.LineSegment(V(17.075505, -4.712853, 0), V(17.363223, -5.633645, 0)),  # 12
    Part.ArcOfCircle(Part.Circle(V(16.990972, -5.749962, 0), V(0, 0, 1), 0.39), math.radians(-83.901374), math.radians(17.352382)),  # 13
    Part.LineSegment(V(17.032406, -6.137755, 0), V(16.938851, -6.147751, 0)),  # 14
    Part.ArcOfCircle(Part.Circle(V(16.897417, -5.759958, 0), V(0, 0, 1), 0.39), math.radians(-162.647618), math.radians(-83.901374)),  # 15
    Part.LineSegment(V(16.525167, -5.876274, 0), V(16.186441, -4.792242, 0)),  # 16
    Part.ArcOfCircle(Part.Circle(V(15.126959, -5.123297, 0), V(0, 0, 1), 1.11), math.radians(17.352382), math.radians(78.516738)),  # 17
    Part.LineSegment(V(15.347939, -4.035516, 0), V(7.575324, -2.456524, 0)),  # 18
    Part.ArcOfCircle(Part.Circle(V(8.897226, 4.050563, 0), V(0, 0, 1), 6.64), math.radians(-120.829202), math.radians(-101.483262)),  # 19
    Part.LineSegment(V(5.494355, -1.651198, 0), V(3.393482, -0.397374, 0)),  # 20
    Part.ArcOfCircle(Part.Circle(V(0.646586, -5, 0), V(0, 0, 1), 5.36), math.radians(59.170798), math.radians(90)),  # 21
    Part.LineSegment(V(0.646586, 0.36, 0), V(-0.646586, 0.36, 0)),  # 22
    Part.ArcOfCircle(Part.Circle(V(-0.646586, -5, 0), V(0, 0, 1), 5.36), math.radians(90), math.radians(120.829202)),  # 23
    Part.LineSegment(V(-3.393482, -0.397374, 0), V(-5.494355, -1.651198, 0)),  # 24
    Part.ArcOfCircle(Part.Circle(V(-8.897226, 4.050563, 0), V(0, 0, 1), 6.64), math.radians(-78.516738), math.radians(-59.170798)),  # 25
    Part.LineSegment(V(-7.575324, -2.456524, 0), V(-15.347939, -4.035516, 0)),  # 26
    Part.ArcOfCircle(Part.Circle(V(-15.126959, -5.123297, 0), V(0, 0, 1), 1.11), math.radians(101.483262), math.radians(162.647618)),  # 27
    Part.LineSegment(V(-16.186441, -4.792242, 0), V(-16.525167, -5.876274, 0)),  # 28
    Part.ArcOfCircle(Part.Circle(V(-16.897417, -5.759958, 0), V(0, 0, 1), 0.39), math.radians(-96.098626), math.radians(-17.352382)),  # 29
    Part.LineSegment(V(-16.938851, -6.147751, 0), V(-17.032406, -6.137755, 0)),  # 30
    Part.ArcOfCircle(Part.Circle(V(-16.990972, -5.749962, 0), V(0, 0, 1), 0.39), math.radians(162.647618), math.radians(263.901374)),  # 31
    Part.LineSegment(V(-17.363223, -5.633645, 0), V(-17.075505, -4.712853, 0)),  # 32
    Part.ArcOfCircle(Part.Circle(V(-14.555655, -5.500227, 0), V(0, 0, 1), 2.64), math.radians(103.915453), math.radians(162.647618)),  # 33
    Part.LineSegment(V(-15.190548, -2.937706, 0), V(-7.174423, -0.951621, 0)),  # 34
    Part.ArcOfCircle(Part.Circle(V(-7.982469, 2.309768, 0), V(0, 0, 1), 3.36), math.radians(-76.084547), math.radians(-29.62375)),  # 35
    Part.LineSegment(V(-5.061654, 0.648912, 0), V(-3.613601, 3.195488, 0)),  # 36
    Part.ArcOfCircle(Part.Circle(V(-3.057256, 2.879134, 0), V(0, 0, 1), 0.64), math.radians(90), math.radians(150.37625)),  # 37
    Part.LineSegment(V(-3.057256, 3.519134, 0), V(-2.678923, 3.519134, 0)),  # 38
    Part.ArcOfCircle(Part.Circle(V(-2.678923, 4.579134, 0), V(0, 0, 1), 1.06), math.radians(-90), math.radians(-25.897547)),  # 39
    Part.LineSegment(V(-1.725372, 4.116165, 0), V(-1.301739, 4.988698, 0)),  # 40
    Part.ArcOfCircle(Part.Circle(V(-2.25529, 5.451667, 0), V(0, 0, 1), 1.06), math.radians(-25.897547), math.radians(43.212513)),  # 41
    Part.LineSegment(V(-1.482742, 6.177455, 0), V(-2.611297, 7.378718, 0)),  # 42
    Part.ArcOfCircle(Part.Circle(V(0.153421, 9.976097, 0), V(0, 0, 1), 3.793421), math.radians(180), math.radians(223.212513)),  # 43
    Part.LineSegment(V(-3.64, 9.976097, 0), V(-3.64, 11.172605, 0)),  # 44
    Part.ArcOfCircle(Part.Circle(V(0, 11.172605, 0), V(0, 0, 1), 3.64), math.radians(26.246857), math.radians(180)),  # 45
    Part.LineSegment(V(3.264705, 12.782357, 0), V(3.906619, 11.480504, 0)),  # 46
    Part.ArcOfCircle(Part.Circle(V(3.601674, 11.330142, 0), V(0, 0, 1), 0.34), math.radians(-63.753143), math.radians(26.246857)),  # 47
    Part.LineSegment(V(3.752036, 11.025197, 0), V(3.662346, 10.980973, 0)),  # 48
    Part.ArcOfCircle(Part.Circle(V(3.511985, 11.285918, 0), V(0, 0, 1), 0.34), math.radians(-153.753143), math.radians(-63.753143)),  # 49
], False)
sketch4.addConstraint([
    Sketcher.Constraint("Coincident", 0, 2, 1, 1),
    Sketcher.Constraint("Coincident", 1, 2, 2, 1),
    Sketcher.Constraint("Coincident", 2, 2, 3, 1),
    Sketcher.Constraint("Coincident", 3, 2, 4, 1),
    Sketcher.Constraint("Coincident", 4, 2, 5, 1),
    Sketcher.Constraint("Coincident", 5, 2, 6, 1),
    Sketcher.Constraint("Coincident", 6, 2, 7, 2),
    Sketcher.Constraint("Coincident", 7, 1, 8, 1),
    Sketcher.Constraint("Coincident", 8, 2, 9, 1),
    Sketcher.Constraint("Coincident", 9, 2, 10, 1),
    Sketcher.Constraint("Coincident", 10, 2, 11, 2),
    Sketcher.Constraint("Coincident", 11, 1, 12, 1),
    Sketcher.Constraint("Coincident", 12, 2, 13, 2),
    Sketcher.Constraint("Coincident", 13, 1, 14, 1),
    Sketcher.Constraint("Coincident", 14, 2, 15, 2),
    Sketcher.Constraint("Coincident", 15, 1, 16, 1),
    Sketcher.Constraint("Coincident", 16, 2, 17, 1),
    Sketcher.Constraint("Coincident", 17, 2, 18, 1),
    Sketcher.Constraint("Coincident", 18, 2, 19, 2),
    Sketcher.Constraint("Coincident", 19, 1, 20, 1),
    Sketcher.Constraint("Coincident", 20, 2, 21, 1),
    Sketcher.Constraint("Coincident", 21, 2, 22, 1),
    Sketcher.Constraint("Coincident", 22, 2, 23, 1),
    Sketcher.Constraint("Coincident", 23, 2, 24, 1),
    Sketcher.Constraint("Coincident", 24, 2, 25, 2),
    Sketcher.Constraint("Coincident", 25, 1, 26, 1),
    Sketcher.Constraint("Coincident", 26, 2, 27, 1),
    Sketcher.Constraint("Coincident", 27, 2, 28, 1),
    Sketcher.Constraint("Coincident", 28, 2, 29, 2),
    Sketcher.Constraint("Coincident", 29, 1, 30, 1),
    Sketcher.Constraint("Coincident", 30, 2, 31, 2),
    Sketcher.Constraint("Coincident", 31, 1, 32, 1),
    Sketcher.Constraint("Coincident", 32, 2, 33, 2),
    Sketcher.Constraint("Coincident", 33, 1, 34, 1),
    Sketcher.Constraint("Coincident", 34, 2, 35, 1),
    Sketcher.Constraint("Coincident", 35, 2, 36, 1),
    Sketcher.Constraint("Coincident", 36, 2, 37, 2),
    Sketcher.Constraint("Coincident", 37, 1, 38, 1),
    Sketcher.Constraint("Coincident", 38, 2, 39, 1),
    Sketcher.Constraint("Coincident", 39, 2, 40, 1),
    Sketcher.Constraint("Coincident", 40, 2, 41, 1),
    Sketcher.Constraint("Coincident", 41, 2, 42, 1),
    Sketcher.Constraint("Coincident", 42, 2, 43, 2),
    Sketcher.Constraint("Coincident", 43, 1, 44, 1),
    Sketcher.Constraint("Coincident", 44, 2, 45, 2),
    Sketcher.Constraint("Coincident", 45, 1, 46, 1),
    Sketcher.Constraint("Coincident", 46, 2, 47, 2),
    Sketcher.Constraint("Coincident", 47, 1, 48, 1),
    Sketcher.Constraint("Coincident", 48, 2, 49, 2),
    Sketcher.Constraint("Coincident", 49, 1, 0, 1),
    Sketcher.Constraint("Vertical", 2),
    Sketcher.Constraint("Horizontal", 6),
    Sketcher.Constraint("Horizontal", 22),
    Sketcher.Constraint("Horizontal", 38),
    Sketcher.Constraint("Vertical", 44),
    Sketcher.Constraint("Coincident", 43, 3, 3, 3),
    Sketcher.Constraint("Coincident", 45, 3, 1, 3),
    Sketcher.Constraint("PointOnObject", 1, 3, -2),
    Sketcher.Constraint("Radius", 1, Q("2.86 mm")),
    Sketcher.Constraint("Radius", 5, Q("1.06 mm")),
    Sketcher.Constraint("Radius", 7, Q("0.64 mm")),
    Sketcher.Constraint("Radius", 9, Q("3.36 mm")),
    Sketcher.Constraint("Radius", 11, Q("2.64 mm")),
    Sketcher.Constraint("Radius", 13, Q("0.39 mm")),
    Sketcher.Constraint("Radius", 15, Q("0.39 mm")),
    Sketcher.Constraint("Radius", 17, Q("1.11 mm")),
    Sketcher.Constraint("Radius", 19, Q("6.64 mm")),
    Sketcher.Constraint("Radius", 21, Q("5.36 mm")),
    Sketcher.Constraint("Radius", 23, Q("5.36 mm")),
    Sketcher.Constraint("Radius", 25, Q("6.64 mm")),
    Sketcher.Constraint("Radius", 27, Q("1.11 mm")),
    Sketcher.Constraint("Radius", 29, Q("0.39 mm")),
    Sketcher.Constraint("Radius", 31, Q("0.39 mm")),
    Sketcher.Constraint("Radius", 33, Q("2.64 mm")),
    Sketcher.Constraint("Radius", 35, Q("3.36 mm")),
    Sketcher.Constraint("Radius", 37, Q("0.64 mm")),
    Sketcher.Constraint("Radius", 39, Q("1.06 mm")),
    Sketcher.Constraint("Radius", 41, Q("1.06 mm")),
    Sketcher.Constraint("Radius", 45, Q("3.64 mm")),
    Sketcher.Constraint("Radius", 47, Q("0.34 mm")),
    Sketcher.Constraint("Radius", 49, Q("0.34 mm")),
    Sketcher.Constraint("DistanceY", 21, 3, -1, 1, Q("5 mm")),
    Sketcher.Constraint("Distance", 48, Q("0.1 mm")),
    Sketcher.Constraint("Radius", 3, Q("3.013421 mm")),
    Sketcher.Constraint("Distance", 10, Q("8.258498 mm")),
    Sketcher.Constraint("Distance", 34, Q("8.258498 mm")),
    Sketcher.Constraint("DistanceX", -1, 1, 7, 1, Q("3.613601 mm")),
    Sketcher.Constraint("DistanceX", 36, 2, -1, 1, Q("3.613601 mm")),
    Sketcher.Constraint("Distance", 0, Q("1.451508 mm")),
    Sketcher.Constraint("Distance", 4, Q("5.569892 mm")),
    Sketcher.Constraint("Distance", 8, Q("2.929488 mm")),
    Sketcher.Constraint("Distance", 16, Q("1.13572 mm")),
    Sketcher.Constraint("Distance", 18, Q("7.931379 mm")),
    Sketcher.Constraint("Distance", 26, Q("7.931379 mm")),
    Sketcher.Constraint("Distance", 28, Q("1.13572 mm")),
    Sketcher.Constraint("Distance", 36, Q("2.929488 mm")),
    Sketcher.Constraint("Distance", 42, Q("1.648232 mm")),
    Sketcher.Constraint("Distance", 46, Q("1.451508 mm")),
    Sketcher.Constraint("DistanceX", 6, 1, 6, 2, Q("0.513785 mm")),
    Sketcher.Constraint("DistanceX", 22, 2, 22, 1, Q("1.293172 mm")),
    Sketcher.Constraint("DistanceX", 38, 1, 38, 2, Q("0.378332 mm")),
    Sketcher.Constraint("DistanceY", 2, 2, 2, 1, Q("1.196508 mm")),
    Sketcher.Constraint("DistanceY", 44, 1, 44, 2, Q("1.196508 mm")),
    Sketcher.Constraint("DistanceX", -1, 1, 5, 3, Q("2.54347 mm")),
    Sketcher.Constraint("DistanceX", -1, 1, 9, 3, Q("7.982469 mm")),
    Sketcher.Constraint("DistanceY", 13, 3, -1, 1, Q("5.749962 mm")),
    Sketcher.Constraint("DistanceX", -1, 1, 17, 3, Q("15.126959 mm")),
    Sketcher.Constraint("DistanceX", 27, 3, -1, 1, Q("15.126959 mm")),
    Sketcher.Constraint("DistanceY", 31, 3, -1, 1, Q("5.749962 mm")),
    Sketcher.Constraint("DistanceX", 35, 3, -1, 1, Q("7.982469 mm")),
    Sketcher.Constraint("DistanceX", 41, 3, -1, 1, Q("2.25529 mm")),
    Sketcher.Constraint("DistanceY", -1, 1, 49, 3, Q("11.285918 mm")),
    Sketcher.Constraint("DistanceY", -1, 1, 0, 2, Q("12.43741 mm")),
    Sketcher.Constraint("DistanceY", -1, 1, 3, 2, Q("7.912789 mm")),
    Sketcher.Constraint("DistanceX", -1, 1, 5, 2, Q("2.54347 mm")),
    Sketcher.Constraint("DistanceY", 9, 2, -1, 1, Q("0.951621 mm")),
    Sketcher.Constraint("DistanceX", -1, 1, 14, 2, Q("16.938851 mm")),
    Sketcher.Constraint("DistanceY", 14, 2, -1, 1, Q("6.147751 mm")),
    Sketcher.Constraint("DistanceX", -1, 1, 16, 2, Q("16.186441 mm")),
    Sketcher.Constraint("DistanceX", -1, 1, 17, 2, Q("15.347939 mm")),
    Sketcher.Constraint("DistanceX", -1, 1, 20, 2, Q("3.393482 mm")),
    Sketcher.Constraint("DistanceX", 23, 2, -1, 1, Q("3.393482 mm")),
    Sketcher.Constraint("DistanceX", 26, 2, -1, 1, Q("15.347939 mm")),
    Sketcher.Constraint("DistanceX", 27, 2, -1, 1, Q("16.186441 mm")),
    Sketcher.Constraint("DistanceX", 29, 1, -1, 1, Q("16.938851 mm")),
    Sketcher.Constraint("DistanceY", 29, 1, -1, 1, Q("6.147751 mm")),
    Sketcher.Constraint("DistanceY", 34, 2, -1, 1, Q("0.951621 mm")),
    Sketcher.Constraint("DistanceX", 40, 2, -1, 1, Q("1.301739 mm")),
    Sketcher.Constraint("DistanceX", -1, 1, 46, 2, Q("3.906619 mm")),
    Sketcher.Constraint("DistanceX", -1, 1, 49, 1, Q("3.20704 mm")),
    Sketcher.Constraint("Distance", 12, Q("0.964697 mm")),
    Sketcher.Constraint("Distance", 14, Q("0.094088 mm")),
    Sketcher.Constraint("Distance", 20, Q("2.446577 mm")),
    Sketcher.Constraint("Distance", 24, Q("2.446577 mm")),
    Sketcher.Constraint("Distance", 30, Q("0.094088 mm")),
    Sketcher.Constraint("Distance", 32, Q("0.964697 mm")),
    Sketcher.Constraint("Distance", 40, Q("0.969937 mm")),
    Sketcher.Constraint("DistanceY", -1, 1, 1, 3, Q("11.172605 mm")),
    Sketcher.Constraint("DistanceY", -1, 1, 3, 3, Q("9.976097 mm")),
    Sketcher.Constraint("DistanceY", -1, 1, 5, 3, Q("4.579134 mm")),
    Sketcher.Constraint("DistanceX", -1, 1, 7, 3, Q("3.057256 mm")),
    Sketcher.Constraint("DistanceY", -1, 1, 9, 3, Q("2.309768 mm")),
    Sketcher.Constraint("DistanceX", -1, 1, 11, 3, Q("14.555655 mm")),
    Sketcher.Constraint("DistanceY", 11, 3, -1, 1, Q("5.500227 mm")),
    Sketcher.Constraint("DistanceX", -1, 1, 13, 3, Q("16.990972 mm")),
    Sketcher.Constraint("DistanceX", -1, 1, 15, 3, Q("16.897417 mm")),
    Sketcher.Constraint("DistanceY", 17, 3, -1, 1, Q("5.123297 mm")),
    Sketcher.Constraint("DistanceX", -1, 1, 19, 3, Q("8.897226 mm")),
    Sketcher.Constraint("DistanceY", -1, 1, 19, 3, Q("4.050563 mm")),
    Sketcher.Constraint("DistanceX", -1, 1, 21, 3, Q("0.646586 mm")),
    Sketcher.Constraint("DistanceX", 23, 3, -1, 1, Q("0.646586 mm")),
    Sketcher.Constraint("DistanceX", 25, 3, -1, 1, Q("8.897226 mm")),
    Sketcher.Constraint("DistanceY", -1, 1, 25, 3, Q("4.050563 mm")),
    Sketcher.Constraint("DistanceY", 27, 3, -1, 1, Q("5.123297 mm")),
    Sketcher.Constraint("DistanceX", 29, 3, -1, 1, Q("16.897417 mm")),
    Sketcher.Constraint("DistanceX", 31, 3, -1, 1, Q("16.990972 mm")),
    Sketcher.Constraint("DistanceX", 33, 3, -1, 1, Q("14.555655 mm")),
    Sketcher.Constraint("DistanceY", 33, 3, -1, 1, Q("5.500227 mm")),
    Sketcher.Constraint("DistanceY", -1, 1, 35, 3, Q("2.309768 mm")),
    Sketcher.Constraint("DistanceX", 37, 3, -1, 1, Q("3.057256 mm")),
    Sketcher.Constraint("DistanceY", -1, 1, 37, 3, Q("2.879134 mm")),
    Sketcher.Constraint("DistanceX", 39, 3, -1, 1, Q("2.678923 mm")),
    Sketcher.Constraint("DistanceY", -1, 1, 41, 3, Q("5.451667 mm")),
    Sketcher.Constraint("DistanceX", -1, 1, 47, 3, Q("3.601674 mm")),
    Sketcher.Constraint("DistanceY", -1, 1, 47, 3, Q("11.330142 mm")),
    Sketcher.Constraint("DistanceY", -1, 1, 1, 2, Q("11.172605 mm")),
    Sketcher.Constraint("DistanceX", -1, 1, 11, 1, Q("17.075505 mm")),
    Sketcher.Constraint("DistanceX", -1, 1, 21, 2, Q("0.646586 mm")),
    Sketcher.Constraint("DistanceX", 31, 1, -1, 1, Q("17.363223 mm")),
    Sketcher.Constraint("DistanceX", 37, 1, -1, 1, Q("3.057256 mm")),
    Sketcher.Constraint("DistanceX", 41, 2, -1, 1, Q("1.482742 mm")),
    Sketcher.Constraint("DistanceY", -1, 1, 43, 1, Q("9.976097 mm")),
    Sketcher.Constraint("DistanceX", -1, 1, 47, 1, Q("3.752036 mm")),
])
pocket2 = body2.newObject("PartDesign::Pocket", "Pocket001")
pocket2.Profile = sketch4
pocket2.Length = 0.25
pocket2.Reversed = True
mirroring.Visibility = False

doc.recompute()
